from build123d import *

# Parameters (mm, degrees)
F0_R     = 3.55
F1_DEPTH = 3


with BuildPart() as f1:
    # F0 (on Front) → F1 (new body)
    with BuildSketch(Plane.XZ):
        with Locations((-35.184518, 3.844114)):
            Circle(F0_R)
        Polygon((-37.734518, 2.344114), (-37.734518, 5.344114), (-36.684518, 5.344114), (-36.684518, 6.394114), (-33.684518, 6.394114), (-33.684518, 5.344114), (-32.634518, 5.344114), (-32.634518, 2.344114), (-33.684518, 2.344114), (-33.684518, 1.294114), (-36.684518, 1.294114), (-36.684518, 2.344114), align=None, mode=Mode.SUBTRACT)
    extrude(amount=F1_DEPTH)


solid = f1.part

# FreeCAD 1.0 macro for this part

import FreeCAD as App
import Part
import Sketcher

V = App.Vector
Q = App.Units.Quantity


def add_polygon(sketch, points):
    """Adds a closed chain of lines whose ends are joined by coincident constraints."""
    first, n = sketch.GeometryCount, len(points)
    for a, b in zip(points, points[1:] + points[:1]):
        sketch.addGeometry(Part.LineSegment(App.Vector(*a, 0), App.Vector(*b, 0)), False)
    for i in range(n):
        sketch.addConstraint(Sketcher.Constraint("Coincident", first + i, 2, first + (i + 1) % n, 1))

doc = App.newDocument("Part")
params = doc.addObject("Spreadsheet::Sheet", "Params")
for row, (alias, value) in enumerate([
    ("sketch1_diameter", "7.1 mm"),
    ("sketch1_width", "3 mm"),
    ("sketch1_width2", "1.05 mm"),
    ("pad1_length", "3 mm"),
], start=1):
    params.set(f"A{row}", alias)
    params.set(f"B{row}", "=" + value)
    params.setAlias(f"B{row}", alias)

body = doc.addObject("PartDesign::Body", "Body")

# Sketch on XZ plane
sketch1 = body.newObject("Sketcher::SketchObject", "Sketch")
sketch1.AttachmentSupport = (doc.getObject("XZ_Plane"), [""])
sketch1.MapMode = "FlatFace"
sketch1.addGeometry(Part.Circle(V(-35.2, 3.8, 0), V(0, 0, 1), 3.5), False)  # 0
add_polygon(sketch1, [(-36.7, 2.3), (-37.7, 2.3), (-37.7, 5.3), (-36.7, 5.3), (-36.7, 6.4), (-33.7, 6.4), (-33.7, 5.3), (-32.6, 5.3), (-32.6, 2.3), (-33.7, 2.3), (-33.7, 1.3), (-36.7, 1.3)])  # lines 1-12
sketch1.addConstraint([
    Sketcher.Constraint("Horizontal", 1),
    Sketcher.Constraint("Vertical", 2),
    Sketcher.Constraint("Horizontal", 3),
    Sketcher.Constraint("Vertical", 4),
    Sketcher.Constraint("Horizontal", 5),
    Sketcher.Constraint("Vertical", 6),
    Sketcher.Constraint("Horizontal", 7),
    Sketcher.Constraint("Vertical", 8),
    Sketcher.Constraint("Horizontal", 9),
    Sketcher.Constraint("Vertical", 10),
    Sketcher.Constraint("Horizontal", 11),
    Sketcher.Constraint("Vertical", 12),
    Sketcher.Constraint("Horizontal", 3, 2, 6, 2),
    Sketcher.Constraint("Horizontal", 1, 2, 8, 2),
    Sketcher.Constraint("Vertical", 6, 2, 9, 2),
    Sketcher.Constraint("Vertical", 4, 2, 11, 2),
    Sketcher.Constraint("Equal", 3, 7),
    Sketcher.Constraint("Equal", 11, 2),
    Sketcher.Constraint("Equal", 9, 4),
    Sketcher.Constraint("Equal", 6, 10),
    Sketcher.Constraint("Diameter", 0, Q("7.1 mm")),
    Sketcher.Constraint("DistanceX", 5, 1, 5, 2, Q("3 mm")),
    Sketcher.Constraint("DistanceX", 1, 2, 1, 1, Q("1.05 mm")),
    Sketcher.Constraint("DistanceY", 1, 2, 0, 3, Q("1.5 mm")),
    Sketcher.Constraint("DistanceX", 3, 2, 0, 3, Q("1.5 mm")),
    Sketcher.Constraint("DistanceX", 0, 3, -1, 1, Q("35.184518 mm")),
    Sketcher.Constraint("DistanceY", -1, 1, 0, 3, Q("3.844114 mm")),
])
sketch1.setExpression("Constraints[32]", "Params.sketch1_diameter")
sketch1.setExpression("Constraints[33]", "Params.sketch1_width")
sketch1.setExpression("Constraints[34]", "Params.sketch1_width2")
pad1 = body.newObject("PartDesign::Pad", "Pad")
pad1.Profile = sketch1
pad1.setExpression("Length", "Params.pad1_length")

doc.recompute()
